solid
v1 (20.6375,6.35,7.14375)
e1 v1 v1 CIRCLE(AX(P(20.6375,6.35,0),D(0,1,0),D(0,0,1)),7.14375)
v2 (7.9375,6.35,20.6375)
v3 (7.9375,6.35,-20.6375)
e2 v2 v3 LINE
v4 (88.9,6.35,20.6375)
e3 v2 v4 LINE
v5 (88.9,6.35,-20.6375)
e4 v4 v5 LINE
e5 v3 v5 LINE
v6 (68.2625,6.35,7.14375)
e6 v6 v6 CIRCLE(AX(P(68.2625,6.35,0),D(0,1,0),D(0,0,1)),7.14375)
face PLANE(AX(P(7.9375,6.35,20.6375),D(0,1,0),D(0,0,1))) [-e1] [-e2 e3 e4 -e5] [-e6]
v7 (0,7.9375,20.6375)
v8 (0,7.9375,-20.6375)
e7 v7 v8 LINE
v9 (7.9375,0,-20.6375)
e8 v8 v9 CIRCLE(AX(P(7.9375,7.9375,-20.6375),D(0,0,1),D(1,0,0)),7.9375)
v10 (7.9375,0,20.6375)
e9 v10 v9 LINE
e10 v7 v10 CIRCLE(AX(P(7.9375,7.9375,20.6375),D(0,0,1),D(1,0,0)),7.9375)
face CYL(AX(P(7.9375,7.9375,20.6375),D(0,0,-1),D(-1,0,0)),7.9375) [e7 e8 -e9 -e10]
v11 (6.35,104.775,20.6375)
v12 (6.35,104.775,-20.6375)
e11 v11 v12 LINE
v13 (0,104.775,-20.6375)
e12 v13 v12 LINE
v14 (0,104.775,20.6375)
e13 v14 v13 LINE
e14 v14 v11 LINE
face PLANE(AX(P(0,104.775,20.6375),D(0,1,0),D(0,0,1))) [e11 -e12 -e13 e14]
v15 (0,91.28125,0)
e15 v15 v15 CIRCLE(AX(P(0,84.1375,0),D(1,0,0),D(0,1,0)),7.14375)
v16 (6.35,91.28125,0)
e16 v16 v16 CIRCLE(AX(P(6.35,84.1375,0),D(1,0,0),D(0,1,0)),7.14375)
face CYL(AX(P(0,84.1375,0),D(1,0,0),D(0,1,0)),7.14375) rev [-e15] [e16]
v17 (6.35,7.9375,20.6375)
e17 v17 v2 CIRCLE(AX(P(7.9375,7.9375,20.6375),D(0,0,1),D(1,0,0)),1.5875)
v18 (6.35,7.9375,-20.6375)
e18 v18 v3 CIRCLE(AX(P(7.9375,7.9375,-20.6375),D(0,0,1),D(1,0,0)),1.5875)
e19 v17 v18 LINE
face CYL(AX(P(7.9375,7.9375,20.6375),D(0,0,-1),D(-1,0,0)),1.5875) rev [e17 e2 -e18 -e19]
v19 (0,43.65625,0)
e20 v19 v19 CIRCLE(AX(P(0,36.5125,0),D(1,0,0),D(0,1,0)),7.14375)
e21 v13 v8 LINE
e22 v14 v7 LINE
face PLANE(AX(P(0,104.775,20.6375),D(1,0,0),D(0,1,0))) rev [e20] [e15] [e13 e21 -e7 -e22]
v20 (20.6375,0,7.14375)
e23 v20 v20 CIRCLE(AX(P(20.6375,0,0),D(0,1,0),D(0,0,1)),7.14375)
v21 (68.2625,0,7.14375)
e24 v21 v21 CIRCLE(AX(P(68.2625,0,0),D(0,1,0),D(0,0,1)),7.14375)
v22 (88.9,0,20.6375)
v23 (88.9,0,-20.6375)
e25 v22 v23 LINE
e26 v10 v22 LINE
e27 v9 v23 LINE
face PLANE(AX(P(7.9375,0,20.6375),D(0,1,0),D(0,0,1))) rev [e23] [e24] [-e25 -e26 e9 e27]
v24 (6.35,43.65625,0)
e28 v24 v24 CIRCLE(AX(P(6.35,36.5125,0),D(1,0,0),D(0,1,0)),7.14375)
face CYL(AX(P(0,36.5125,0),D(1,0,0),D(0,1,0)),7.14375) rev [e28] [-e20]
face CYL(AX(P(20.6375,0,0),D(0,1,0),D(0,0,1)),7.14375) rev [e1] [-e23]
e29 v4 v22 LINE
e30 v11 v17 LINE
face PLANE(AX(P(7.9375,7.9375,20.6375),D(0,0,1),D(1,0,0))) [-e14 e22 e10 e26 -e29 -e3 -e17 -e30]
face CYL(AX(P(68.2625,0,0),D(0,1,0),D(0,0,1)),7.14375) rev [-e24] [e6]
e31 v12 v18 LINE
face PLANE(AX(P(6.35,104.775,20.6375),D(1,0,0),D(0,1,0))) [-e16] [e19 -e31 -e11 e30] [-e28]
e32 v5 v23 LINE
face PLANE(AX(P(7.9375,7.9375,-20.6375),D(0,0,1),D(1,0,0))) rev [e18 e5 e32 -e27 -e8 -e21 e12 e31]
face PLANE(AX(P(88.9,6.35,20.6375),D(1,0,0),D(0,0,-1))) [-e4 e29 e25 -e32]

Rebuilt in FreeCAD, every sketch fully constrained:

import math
import FreeCAD as App
import Part
import Sketcher

V = App.Vector
Q = App.Units.Quantity

doc = App.newDocument("Part")
body = doc.addObject("PartDesign::Body", "Body")

sketch1 = body.newObject("Sketcher::SketchObject", "Sketch")
sketch1.AttachmentSupport = (doc.getObject("XY_Plane"), [""])
sketch1.MapMode = "FlatFace"
sketch1.addGeometry([
    Part.LineSegment(V(0, 104.775, 0), V(0, 7.9375, 0)),
    Part.ArcOfCircle(Part.Circle(V(7.9375, 7.9375, 0), V(0, 0, 1), 7.9375), math.radians(180), math.radians(270)),
    Part.LineSegment(V(7.9375, 0, 0), V(88.9, 0, 0)),
    Part.LineSegment(V(88.9, 0, 0), V(88.9, 6.35, 0)),
    Part.LineSegment(V(88.9, 6.35, 0), V(7.9375, 6.35, 0)),
    Part.ArcOfCircle(Part.Circle(V(7.9375, 7.9375, 0), V(0, 0, 1), 1.5875), math.radians(180), math.radians(270)),
    Part.LineSegment(V(6.35, 7.9375, 0), V(6.35, 104.775, 0)),
    Part.LineSegment(V(6.35, 104.775, 0), V(0, 104.775, 0)),
], False)
sketch1.addConstraint([
    Sketcher.Constraint("Tangent", 0, 2, 1, 1),
    Sketcher.Constraint("Tangent", 1, 2, 2, 1),
    Sketcher.Constraint("Coincident", 2, 2, 3, 1),
    Sketcher.Constraint("Coincident", 3, 2, 4, 1),
    Sketcher.Constraint("Tangent", 4, 2, 5, 2),
    Sketcher.Constraint("Tangent", 5, 1, 6, 1),
    Sketcher.Constraint("Coincident", 6, 2, 7, 1),
    Sketcher.Constraint("Coincident", 7, 2, 0, 1),
    Sketcher.Constraint("Vertical", 0),
    Sketcher.Constraint("Horizontal", 2),
    Sketcher.Constraint("Vertical", 3),
    Sketcher.Constraint("Horizontal", 4),
    Sketcher.Constraint("Vertical", 6),
    Sketcher.Constraint("Horizontal", 7),
    Sketcher.Constraint("Coincident", 5, 3, 1, 3),
    Sketcher.Constraint("PointOnObject", 0, 2, -2),
    Sketcher.Constraint("PointOnObject", 1, 2, -1),
    Sketcher.Constraint("Radius", 1, Q("0.3125 in")),
    Sketcher.Constraint("Radius", 5, Q("0.0625 in")),
    Sketcher.Constraint("DistanceX", -1, 1, 2, 2, Q("3.5 in")),
    Sketcher.Constraint("DistanceY", 0, 2, 0, 1, Q("3.8125 in")),
])
pad1 = body.newObject("PartDesign::Pad", "Pad")
pad1.Profile = sketch1
pad1.Length = Q("1.625 in")
pad1.Midplane = True

sketch2 = body.newObject("Sketcher::SketchObject", "Sketch001")
sketch2.AttachmentSupport = (doc.getObject("XZ_Plane"), [""])
sketch2.MapMode = "FlatFace"
sketch2.AttachmentOffset = App.Placement(V(0, 0, -0.25 * 25.4), App.Rotation())
sketch2.addGeometry([
    Part.Circle(V(68.2625, 0, 0), V(0, 0, 1), 7.14375),
    Part.Circle(V(20.6375, 0, 0), V(0, 0, 1), 7.14375),
], False)
sketch2.addConstraint([
    Sketcher.Constraint("Equal", 0, 1),
    Sketcher.Constraint("PointOnObject", 0, 3, -1),
    Sketcher.Constraint("PointOnObject", 1, 3, -1),
    Sketcher.Constraint("Diameter", 0, Q("0.5625 in")),
    Sketcher.Constraint("DistanceX", -1, 1, 0, 3, Q("2.6875 in")),
    Sketcher.Constraint("DistanceX", -1, 1, 1, 3, Q("0.8125 in")),
])
pocket1 = body.newObject("PartDesign::Pocket", "Pocket")
pocket1.Profile = sketch2
pocket1.Type = "ThroughAll"
pocket1.Reversed = True

sketch3 = body.newObject("Sketcher::SketchObject", "Sketch002")
sketch3.AttachmentSupport = (doc.getObject("YZ_Plane"), [""])
sketch3.MapMode = "FlatFace"
sketch3.AttachmentOffset = App.Placement(V(0, 0, 0.25 * 25.4), App.Rotation())
sketch3.addGeometry([
    Part.Circle(V(84.1375, 0, 0), V(0, 0, 1), 7.14375),
    Part.Circle(V(36.5125, 0, 0), V(0, 0, 1), 7.14375),
], False)
sketch3.addConstraint([
    Sketcher.Constraint("Equal", 0, 1),
    Sketcher.Constraint("PointOnObject", 0, 3, -1),
    Sketcher.Constraint("PointOnObject", 1, 3, -1),
    Sketcher.Constraint("Diameter", 0, Q("0.5625 in")),
    Sketcher.Constraint("DistanceX", -1, 1, 0, 3, Q("3.3125 in")),
    Sketcher.Constraint("DistanceX", -1, 1, 1, 3, Q("1.4375 in")),
])
pocket2 = body.newObject("PartDesign::Pocket", "Pocket001")
pocket2.Profile = sketch3
pocket2.Type = "ThroughAll"

doc.recompute()
